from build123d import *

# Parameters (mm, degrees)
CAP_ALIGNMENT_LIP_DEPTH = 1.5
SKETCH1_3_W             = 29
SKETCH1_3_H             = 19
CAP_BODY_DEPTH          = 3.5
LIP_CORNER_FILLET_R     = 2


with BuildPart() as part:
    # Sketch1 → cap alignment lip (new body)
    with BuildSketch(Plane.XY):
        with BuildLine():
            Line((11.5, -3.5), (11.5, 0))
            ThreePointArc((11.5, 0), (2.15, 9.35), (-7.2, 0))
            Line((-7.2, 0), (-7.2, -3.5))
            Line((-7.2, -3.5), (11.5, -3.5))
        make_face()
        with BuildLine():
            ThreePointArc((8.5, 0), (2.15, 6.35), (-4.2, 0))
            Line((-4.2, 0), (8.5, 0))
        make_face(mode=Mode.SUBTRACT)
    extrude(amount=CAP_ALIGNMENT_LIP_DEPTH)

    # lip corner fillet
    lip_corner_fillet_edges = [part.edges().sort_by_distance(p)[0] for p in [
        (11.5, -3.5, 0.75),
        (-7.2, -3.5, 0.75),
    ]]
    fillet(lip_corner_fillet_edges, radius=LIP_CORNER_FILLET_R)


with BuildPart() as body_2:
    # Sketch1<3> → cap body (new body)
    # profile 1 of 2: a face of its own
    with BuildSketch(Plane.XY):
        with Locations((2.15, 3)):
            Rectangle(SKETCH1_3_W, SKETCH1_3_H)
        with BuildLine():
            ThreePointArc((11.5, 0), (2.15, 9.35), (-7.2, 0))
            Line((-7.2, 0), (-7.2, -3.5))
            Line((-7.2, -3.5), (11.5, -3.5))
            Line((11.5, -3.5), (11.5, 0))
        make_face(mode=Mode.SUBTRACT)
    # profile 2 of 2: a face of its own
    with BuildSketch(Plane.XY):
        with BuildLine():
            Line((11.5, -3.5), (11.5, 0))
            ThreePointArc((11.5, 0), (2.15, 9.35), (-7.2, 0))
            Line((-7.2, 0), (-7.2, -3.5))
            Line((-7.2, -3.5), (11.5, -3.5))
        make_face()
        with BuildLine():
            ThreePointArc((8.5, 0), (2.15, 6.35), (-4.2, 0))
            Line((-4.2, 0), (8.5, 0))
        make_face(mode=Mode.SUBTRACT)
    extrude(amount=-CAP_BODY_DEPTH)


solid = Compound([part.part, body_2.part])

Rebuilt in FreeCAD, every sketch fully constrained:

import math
import FreeCAD as App
import Part
import Sketcher

V = App.Vector
Q = App.Units.Quantity


def edges_at(feature, points):
    """Names of the edges that pass closest to the given points."""
    edges = feature.Shape.Edges
    near = lambda p: min(range(len(edges)), key=lambda i: edges[i].distToShape(Part.Vertex(*p))[0])
    return sorted({f"Edge{near(p) + 1}" for p in points})

doc = App.newDocument("Part")
body = doc.addObject("PartDesign::Body", "Body")

sketch1 = body.newObject("Sketcher::SketchObject", "Sketch")
sketch1.AttachmentSupport = (doc.getObject("XY_Plane"), [""])
sketch1.MapMode = "FlatFace"
sketch1.addGeometry(Part.LineSegment(V(11.5, -3.5, 0), V(11.5, 0, 0)), False)
sketch1.addGeometry(Part.ArcOfCircle(Part.Circle(V(2.1, 0, 0), V(0, 0, 1), 9.3), math.radians(0), math.radians(180)), False)
sketch1.addGeometry(Part.LineSegment(V(-7.2, 0, 0), V(-7.2, -3.5, 0)), False)
sketch1.addGeometry(Part.LineSegment(V(-7.2, -3.5, 0), V(11.5, -3.5, 0)), False)
sketch1.addGeometry(Part.ArcOfCircle(Part.Circle(V(2.1, 0, 0), V(0, 0, 1), 6.3), math.radians(0), math.radians(180)), False)
sketch1.addGeometry(Part.LineSegment(V(8.5, 0, 0), V(-4.2, 0, 0)), False)
sketch1.addConstraint(Sketcher.Constraint("Tangent", 0, 2, 1, 1))
sketch1.addConstraint(Sketcher.Constraint("Tangent", 1, 2, 2, 1))
sketch1.addConstraint(Sketcher.Constraint("Coincident", 2, 2, 3, 1))
sketch1.addConstraint(Sketcher.Constraint("Coincident", 3, 2, 0, 1))
sketch1.addConstraint(Sketcher.Constraint("Coincident", 4, 1, 5, 1))
sketch1.addConstraint(Sketcher.Constraint("Coincident", 5, 2, 4, 2))
sketch1.addConstraint(Sketcher.Constraint("Vertical", 0))
sketch1.addConstraint(Sketcher.Constraint("Vertical", 2))
sketch1.addConstraint(Sketcher.Constraint("Horizontal", 3))
sketch1.addConstraint(Sketcher.Constraint("Horizontal", 5))
sketch1.addConstraint(Sketcher.Constraint("Coincident", 4, 3, 1, 3))
sketch1.addConstraint(Sketcher.Constraint("PointOnObject", 1, 3, -1))
sketch1.addConstraint(Sketcher.Constraint("PointOnObject", 4, 1, -1))
sketch1.addConstraint(Sketcher.Constraint("Radius", 1, Q("9.35 mm")))
sketch1.addConstraint(Sketcher.Constraint("Radius", 4, Q("6.35 mm")))
sketch1.addConstraint(Sketcher.Constraint("DistanceY", 0, 1, 0, 2, Q("3.5 mm")))
sketch1.addConstraint(Sketcher.Constraint("DistanceX", -1, 1, 0, 2, Q("11.5 mm")))
pad1 = body.newObject("PartDesign::Pad", "Pad")
pad1.Profile = sketch1
pad1.Length = 1.5
doc.recompute()

fillet = body.newObject("PartDesign::Fillet", "Fillet")
fillet.Base = (pad1, edges_at(pad1, [(11.5, -3.5, 0.75), (-7.2, -3.5, 0.75)]))
fillet.Radius = 2
body2 = doc.addObject("PartDesign::Body", "Body001")

sketch2 = body2.newObject("Sketcher::SketchObject", "Sketch001")
sketch2.AttachmentSupport = (doc.getObject("XY_Plane001"), [""])
sketch2.MapMode = "FlatFace"
sketch2.addGeometry(Part.LineSegment(V(-12, 12, 0), V(-12, -6, 0)), False)
sketch2.addGeometry(Part.LineSegment(V(-12, -6, 0), V(17, -6, 0)), False)
sketch2.addGeometry(Part.LineSegment(V(17, -6, 0), V(17, 12, 0)), False)
sketch2.addGeometry(Part.LineSegment(V(17, 12, 0), V(-12, 12, 0)), False)
sketch2.addGeometry(Part.LineSegment(V(8, 0, 0), V(-4, 0, 0)), False)
sketch2.addGeometry(Part.ArcOfCircle(Part.Circle(V(2, 0, 0), V(0, 0, 1), 6), math.radians(0), math.radians(180)), False)
sketch2.addConstraint(Sketcher.Constraint("Coincident", 0, 2, 1, 1))
sketch2.addConstraint(Sketcher.Constraint("Coincident", 1, 2, 2, 1))
sketch2.addConstraint(Sketcher.Constraint("Coincident", 2, 2, 3, 1))
sketch2.addConstraint(Sketcher.Constraint("Coincident", 3, 2, 0, 1))
sketch2.addConstraint(Sketcher.Constraint("Coincident", 4, 1, 5, 1))
sketch2.addConstraint(Sketcher.Constraint("Coincident", 5, 2, 4, 2))
sketch2.addConstraint(Sketcher.Constraint("Vertical", 0))
sketch2.addConstraint(Sketcher.Constraint("Horizontal", 1))
sketch2.addConstraint(Sketcher.Constraint("Vertical", 2))
sketch2.addConstraint(Sketcher.Constraint("Horizontal", 3))
sketch2.addConstraint(Sketcher.Constraint("Horizontal", 4))
sketch2.addConstraint(Sketcher.Constraint("PointOnObject", 5, 3, -1))
sketch2.addConstraint(Sketcher.Constraint("PointOnObject", 4, 1, -1))
sketch2.addConstraint(Sketcher.Constraint("DistanceX", 1, 1, 1, 2, Q("29 mm")))
sketch2.addConstraint(Sketcher.Constraint("DistanceY", 0, 2, 0, 1, Q("19 mm")))
sketch2.addConstraint(Sketcher.Constraint("Radius", 5, Q("6.35 mm")))
sketch2.addConstraint(Sketcher.Constraint("DistanceY", 0, 2, -1, 1, Q("6.5 mm")))
sketch2.addConstraint(Sketcher.Constraint("DistanceX", -1, 1, 4, 1, Q("8.5 mm")))
sketch2.addConstraint(Sketcher.Constraint("DistanceX", 0, 2, 5, 3, Q("14.5 mm")))
pad2 = body2.newObject("PartDesign::Pad", "Pad001")
pad2.Profile = sketch2
pad2.Length = 3.5
pad2.Reversed = True

doc.recompute()
